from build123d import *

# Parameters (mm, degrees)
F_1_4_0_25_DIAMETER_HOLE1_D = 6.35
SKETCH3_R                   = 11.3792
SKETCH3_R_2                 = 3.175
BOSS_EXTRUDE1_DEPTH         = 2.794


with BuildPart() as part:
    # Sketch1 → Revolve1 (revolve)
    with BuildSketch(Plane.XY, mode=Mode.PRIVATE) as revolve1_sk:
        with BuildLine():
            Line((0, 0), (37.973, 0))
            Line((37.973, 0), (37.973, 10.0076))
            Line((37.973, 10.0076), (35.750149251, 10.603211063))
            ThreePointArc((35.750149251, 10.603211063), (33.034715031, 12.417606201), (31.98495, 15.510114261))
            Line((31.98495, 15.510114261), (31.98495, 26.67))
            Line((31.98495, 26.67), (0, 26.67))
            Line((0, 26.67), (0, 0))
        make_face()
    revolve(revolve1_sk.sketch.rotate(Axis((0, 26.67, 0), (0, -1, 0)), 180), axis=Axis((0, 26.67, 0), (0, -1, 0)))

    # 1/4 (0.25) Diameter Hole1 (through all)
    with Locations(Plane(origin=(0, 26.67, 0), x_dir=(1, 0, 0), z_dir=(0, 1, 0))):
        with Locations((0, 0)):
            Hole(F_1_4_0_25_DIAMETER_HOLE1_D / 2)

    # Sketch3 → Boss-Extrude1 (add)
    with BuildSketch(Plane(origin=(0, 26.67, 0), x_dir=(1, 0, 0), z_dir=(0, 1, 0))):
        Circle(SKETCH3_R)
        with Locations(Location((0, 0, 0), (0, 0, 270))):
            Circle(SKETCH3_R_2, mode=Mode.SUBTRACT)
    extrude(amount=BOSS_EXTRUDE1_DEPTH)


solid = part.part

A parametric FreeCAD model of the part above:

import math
import FreeCAD as App
import Part
import Sketcher
from FreeCAD import Vector
Q = App.Units.Quantity

doc = App.newDocument("Part")
body = doc.addObject("PartDesign::Body", "Body")

# Sketch on XY plane
sketch1 = doc.addObject("Sketcher::SketchObject", "Sketch")
body.addObject(sketch1)
sketch1.AttachmentSupport = (doc.XY_Plane, [""])
sketch1.MapMode = "FlatFace"
sketch1.addGeometry(Part.LineSegment(Vector(0, 0, 0), Vector(38, 0, 0)), False)
sketch1.addGeometry(Part.LineSegment(Vector(38, 0, 0), Vector(38, 10, 0)), False)
sketch1.addGeometry(Part.LineSegment(Vector(38, 10, 0), Vector(35.8, 10.6, 0)), False)
sketch1.addGeometry(Part.ArcOfCircle(Part.Circle(Vector(37.1, 15.5, 0), Vector(0, 0, 1), 5.1), math.radians(180), math.radians(255)), False)
sketch1.addGeometry(Part.LineSegment(Vector(32, 15.5, 0), Vector(32, 26.7, 0)), False)
sketch1.addGeometry(Part.LineSegment(Vector(32, 26.7, 0), Vector(0, 26.7, 0)), False)
sketch1.addGeometry(Part.LineSegment(Vector(0, 26.7, 0), Vector(0, 0, 0)), False)
sketch1.addConstraint(Sketcher.Constraint("Coincident", 0, 2, 1, 1))
sketch1.addConstraint(Sketcher.Constraint("Coincident", 1, 2, 2, 1))
sketch1.addConstraint(Sketcher.Constraint("Tangent", 2, 2, 3, 2))
sketch1.addConstraint(Sketcher.Constraint("Tangent", 3, 1, 4, 1))
sketch1.addConstraint(Sketcher.Constraint("Coincident", 4, 2, 5, 1))
sketch1.addConstraint(Sketcher.Constraint("Coincident", 5, 2, 6, 1))
sketch1.addConstraint(Sketcher.Constraint("Coincident", 6, 2, 0, 1))
sketch1.addConstraint(Sketcher.Constraint("Horizontal", 0))
sketch1.addConstraint(Sketcher.Constraint("Vertical", 1))
sketch1.addConstraint(Sketcher.Constraint("Vertical", 4))
sketch1.addConstraint(Sketcher.Constraint("Horizontal", 5))
sketch1.addConstraint(Sketcher.Constraint("Vertical", 6))
sketch1.addConstraint(Sketcher.Constraint("Coincident", 6, 2, -1, 1))
sketch1.addConstraint(Sketcher.Constraint("Radius", 3, Q("0.2 in")))
sketch1.addConstraint(Sketcher.Constraint("Angle", 2, Q("165 deg")))
sketch1.addConstraint(Sketcher.Constraint("DistanceY", 6, 2, 6, 1, Q("1.05 in")))
sketch1.addConstraint(Sketcher.Constraint("DistanceX", 0, 1, 0, 2, Q("1.495 in")))
sketch1.addConstraint(Sketcher.Constraint("DistanceY", 1, 1, 1, 2, Q("0.394 in")))
sketch1.addConstraint(Sketcher.Constraint("DistanceX", 5, 2, 5, 1, 31.98495))
revolution = doc.addObject("PartDesign::Revolution", "Revolution")
body.addObject(revolution)
revolution.Profile = sketch1
revolution.ReferenceAxis = (sketch1, ["V_Axis"])
revolution.Angle = 360

# Sketch on XZ plane
sketch2 = doc.addObject("Sketcher::SketchObject", "Sketch001")
body.addObject(sketch2)
sketch2.AttachmentSupport = (doc.XZ_Plane, [""])
sketch2.MapMode = "FlatFace"
sketch2.AttachmentOffset = App.Placement(Vector(0, 0, -1.05 * 25.4), App.Rotation())
sketch2.addGeometry(Part.Circle(Vector(0, 0, 0), Vector(0, 0, 1), 3.2), False)
sketch2.addConstraint(Sketcher.Constraint("Coincident", 0, 3, -1, 1))
sketch2.addConstraint(Sketcher.Constraint("Diameter", 0, Q("0.25 in")))
doc.recompute()
hole = doc.addObject("PartDesign::Hole", "Hole")
body.addObject(hole)
hole.Profile = sketch2
hole.ThreadType = "None"
hole.Diameter = Q("0.25 in")
hole.DepthType = "ThroughAll"
hole.Reversed = True

# Sketch on XZ plane
sketch3 = doc.addObject("Sketcher::SketchObject", "Sketch002")
body.addObject(sketch3)
sketch3.AttachmentSupport = (doc.XZ_Plane, [""])
sketch3.MapMode = "FlatFace"
sketch3.AttachmentOffset = App.Placement(Vector(0, 0, -1.05 * 25.4), App.Rotation())
sketch3.addGeometry(Part.Circle(Vector(0, 0, 0), Vector(0, 0, 1), 11.4), False)
sketch3.addGeometry(Part.Circle(Vector(0, 0, 0), Vector(0, 0, 1), 3.2), False)
sketch3.addConstraint(Sketcher.Constraint("Coincident", 0, 3, -1, 1))
sketch3.addConstraint(Sketcher.Constraint("Coincident", 1, 3, -1, 1))
sketch3.addConstraint(Sketcher.Constraint("Diameter", 1, Q("0.25 in")))
sketch3.addConstraint(Sketcher.Constraint("Diameter", 0, Q("0.896 in")))
pad1 = doc.addObject("PartDesign::Pad", "Pad")
body.addObject(pad1)
pad1.Profile = sketch3
pad1.Length = Q("0.11 in")
pad1.Reversed = True

doc.recompute()
